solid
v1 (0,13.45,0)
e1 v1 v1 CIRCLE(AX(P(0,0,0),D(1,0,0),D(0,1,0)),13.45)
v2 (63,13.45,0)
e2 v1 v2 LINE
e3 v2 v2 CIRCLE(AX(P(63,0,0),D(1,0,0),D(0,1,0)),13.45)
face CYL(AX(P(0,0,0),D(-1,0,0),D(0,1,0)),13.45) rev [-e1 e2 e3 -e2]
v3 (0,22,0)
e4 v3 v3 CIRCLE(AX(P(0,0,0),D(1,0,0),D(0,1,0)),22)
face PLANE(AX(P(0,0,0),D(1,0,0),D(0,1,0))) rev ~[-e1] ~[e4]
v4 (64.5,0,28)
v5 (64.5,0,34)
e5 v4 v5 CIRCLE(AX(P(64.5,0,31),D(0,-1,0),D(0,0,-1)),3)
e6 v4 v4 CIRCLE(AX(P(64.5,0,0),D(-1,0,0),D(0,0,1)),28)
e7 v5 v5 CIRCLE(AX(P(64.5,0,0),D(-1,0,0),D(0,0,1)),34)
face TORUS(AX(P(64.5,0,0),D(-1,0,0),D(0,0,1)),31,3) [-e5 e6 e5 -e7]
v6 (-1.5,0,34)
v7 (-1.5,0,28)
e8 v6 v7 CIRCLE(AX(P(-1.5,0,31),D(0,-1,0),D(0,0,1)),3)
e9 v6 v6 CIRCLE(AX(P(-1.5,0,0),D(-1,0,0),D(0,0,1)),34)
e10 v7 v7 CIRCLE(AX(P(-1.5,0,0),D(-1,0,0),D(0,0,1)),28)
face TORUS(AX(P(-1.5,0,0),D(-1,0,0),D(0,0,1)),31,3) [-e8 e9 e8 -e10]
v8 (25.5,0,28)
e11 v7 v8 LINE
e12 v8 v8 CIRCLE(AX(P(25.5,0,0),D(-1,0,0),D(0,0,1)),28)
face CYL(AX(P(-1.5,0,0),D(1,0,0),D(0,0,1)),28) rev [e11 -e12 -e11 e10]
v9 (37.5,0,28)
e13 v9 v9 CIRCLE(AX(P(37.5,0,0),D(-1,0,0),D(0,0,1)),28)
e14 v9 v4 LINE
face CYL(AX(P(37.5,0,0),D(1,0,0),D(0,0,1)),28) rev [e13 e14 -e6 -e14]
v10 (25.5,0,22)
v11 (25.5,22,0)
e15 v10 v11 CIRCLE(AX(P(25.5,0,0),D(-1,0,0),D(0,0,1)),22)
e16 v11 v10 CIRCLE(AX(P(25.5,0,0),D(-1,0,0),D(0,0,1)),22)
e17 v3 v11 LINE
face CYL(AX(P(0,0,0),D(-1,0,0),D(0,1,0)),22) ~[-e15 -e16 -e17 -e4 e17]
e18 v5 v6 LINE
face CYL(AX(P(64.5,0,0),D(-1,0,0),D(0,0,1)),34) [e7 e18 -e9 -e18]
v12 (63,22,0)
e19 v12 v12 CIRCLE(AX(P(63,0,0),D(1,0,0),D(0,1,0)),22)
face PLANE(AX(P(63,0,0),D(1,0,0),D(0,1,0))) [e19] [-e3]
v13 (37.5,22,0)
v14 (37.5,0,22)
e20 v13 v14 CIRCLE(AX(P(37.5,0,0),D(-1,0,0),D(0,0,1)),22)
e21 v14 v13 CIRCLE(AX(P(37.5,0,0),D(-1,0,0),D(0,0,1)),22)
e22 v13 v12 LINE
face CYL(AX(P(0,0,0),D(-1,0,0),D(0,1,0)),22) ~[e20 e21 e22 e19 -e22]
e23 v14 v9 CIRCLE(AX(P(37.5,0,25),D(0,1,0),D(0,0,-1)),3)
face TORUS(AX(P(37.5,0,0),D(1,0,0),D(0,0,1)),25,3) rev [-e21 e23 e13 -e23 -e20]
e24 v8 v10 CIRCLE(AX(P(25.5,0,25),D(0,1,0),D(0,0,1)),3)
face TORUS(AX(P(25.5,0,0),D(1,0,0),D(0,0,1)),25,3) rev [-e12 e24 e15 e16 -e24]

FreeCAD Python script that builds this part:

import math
import FreeCAD as App
import Part
import Sketcher
from FreeCAD import Vector

doc = App.newDocument("Part")
body = doc.addObject("PartDesign::Body", "Body")

sketch1 = body.newObject("Sketcher::SketchObject", "Sketch")
sketch1.AttachmentSupport = (doc.getObject("YZ_Plane"), [""])
sketch1.MapMode = "FlatFace"
sketch1.addGeometry([
    Part.Circle(Vector(0, 0, 0), Vector(0, 0, 1), 22),
    Part.Circle(Vector(0, 0, 0), Vector(0, 0, 1), 13),
], False)
sketch1.addConstraint([
    Sketcher.Constraint("Coincident", 0, 3, -1, 1),
    Sketcher.Constraint("Coincident", 1, 3, -1, 1),
    Sketcher.Constraint("Diameter", 0, 44.0),
    Sketcher.Constraint("Diameter", 1, 26.9),
])
pad1 = body.newObject("PartDesign::Pad", "Pad")
pad1.Profile = sketch1
pad1.Length = 63

sketch2 = body.newObject("Sketcher::SketchObject", "Sketch001")
sketch2.AttachmentSupport = (doc.getObject("XZ_Plane"), [""])
sketch2.MapMode = "FlatFace"
sketch2.addGeometry([
    Part.LineSegment(Vector(64.5, 34, 0), Vector(-1.5, 34, 0)),
    Part.ArcOfCircle(Part.Circle(Vector(-1.5, 31, 0), Vector(0, 0, 1), 3), math.radians(90), math.radians(270)),
    Part.LineSegment(Vector(-1.5, 28, 0), Vector(25.5, 28, 0)),
    Part.ArcOfCircle(Part.Circle(Vector(25.5, 25, 0), Vector(0, 0, 1), 3), math.radians(-90), math.radians(90)),
    Part.LineSegment(Vector(25.5, 22, 0), Vector(37.5, 22, 0)),
    Part.ArcOfCircle(Part.Circle(Vector(37.5, 25, 0), Vector(0, 0, 1), 3), math.radians(90), math.radians(270)),
    Part.LineSegment(Vector(37.5, 28, 0), Vector(64.5, 28, 0)),
    Part.ArcOfCircle(Part.Circle(Vector(64.5, 31, 0), Vector(0, 0, 1), 3), math.radians(-90), math.radians(90)),
], False)
sketch2.addConstraint([
    Sketcher.Constraint("Tangent", 0, 2, 1, 1),
    Sketcher.Constraint("Tangent", 1, 2, 2, 1),
    Sketcher.Constraint("Tangent", 2, 2, 3, 2),
    Sketcher.Constraint("Tangent", 3, 1, 4, 1),
    Sketcher.Constraint("Tangent", 4, 2, 5, 2),
    Sketcher.Constraint("Tangent", 5, 1, 6, 1),
    Sketcher.Constraint("Tangent", 6, 2, 7, 1),
    Sketcher.Constraint("Tangent", 7, 2, 0, 1),
    Sketcher.Constraint("Horizontal", 0),
    Sketcher.Constraint("Horizontal", 2),
    Sketcher.Constraint("Horizontal", 4),
    Sketcher.Constraint("Horizontal", 6),
    Sketcher.Constraint("Equal", 1, 3),
    Sketcher.Constraint("Equal", 3, 5),
    Sketcher.Constraint("Equal", 2, 6),
    Sketcher.Constraint("Radius", 1, 3.0),
    Sketcher.Constraint("DistanceX", 0, 2, 0, 1, 66.0),
    Sketcher.Constraint("DistanceX", 2, 1, 2, 2, 27.0),
    Sketcher.Constraint("DistanceY", -1, 1, 1, 3, 31.0),
    Sketcher.Constraint("DistanceX", 1, 3, -1, 1, 1.5),
])
revolution = body.newObject("PartDesign::Revolution", "Revolution")
revolution.Profile = sketch2
revolution.ReferenceAxis = (sketch2, ["H_Axis"])
revolution.Angle = 360

doc.recompute()
